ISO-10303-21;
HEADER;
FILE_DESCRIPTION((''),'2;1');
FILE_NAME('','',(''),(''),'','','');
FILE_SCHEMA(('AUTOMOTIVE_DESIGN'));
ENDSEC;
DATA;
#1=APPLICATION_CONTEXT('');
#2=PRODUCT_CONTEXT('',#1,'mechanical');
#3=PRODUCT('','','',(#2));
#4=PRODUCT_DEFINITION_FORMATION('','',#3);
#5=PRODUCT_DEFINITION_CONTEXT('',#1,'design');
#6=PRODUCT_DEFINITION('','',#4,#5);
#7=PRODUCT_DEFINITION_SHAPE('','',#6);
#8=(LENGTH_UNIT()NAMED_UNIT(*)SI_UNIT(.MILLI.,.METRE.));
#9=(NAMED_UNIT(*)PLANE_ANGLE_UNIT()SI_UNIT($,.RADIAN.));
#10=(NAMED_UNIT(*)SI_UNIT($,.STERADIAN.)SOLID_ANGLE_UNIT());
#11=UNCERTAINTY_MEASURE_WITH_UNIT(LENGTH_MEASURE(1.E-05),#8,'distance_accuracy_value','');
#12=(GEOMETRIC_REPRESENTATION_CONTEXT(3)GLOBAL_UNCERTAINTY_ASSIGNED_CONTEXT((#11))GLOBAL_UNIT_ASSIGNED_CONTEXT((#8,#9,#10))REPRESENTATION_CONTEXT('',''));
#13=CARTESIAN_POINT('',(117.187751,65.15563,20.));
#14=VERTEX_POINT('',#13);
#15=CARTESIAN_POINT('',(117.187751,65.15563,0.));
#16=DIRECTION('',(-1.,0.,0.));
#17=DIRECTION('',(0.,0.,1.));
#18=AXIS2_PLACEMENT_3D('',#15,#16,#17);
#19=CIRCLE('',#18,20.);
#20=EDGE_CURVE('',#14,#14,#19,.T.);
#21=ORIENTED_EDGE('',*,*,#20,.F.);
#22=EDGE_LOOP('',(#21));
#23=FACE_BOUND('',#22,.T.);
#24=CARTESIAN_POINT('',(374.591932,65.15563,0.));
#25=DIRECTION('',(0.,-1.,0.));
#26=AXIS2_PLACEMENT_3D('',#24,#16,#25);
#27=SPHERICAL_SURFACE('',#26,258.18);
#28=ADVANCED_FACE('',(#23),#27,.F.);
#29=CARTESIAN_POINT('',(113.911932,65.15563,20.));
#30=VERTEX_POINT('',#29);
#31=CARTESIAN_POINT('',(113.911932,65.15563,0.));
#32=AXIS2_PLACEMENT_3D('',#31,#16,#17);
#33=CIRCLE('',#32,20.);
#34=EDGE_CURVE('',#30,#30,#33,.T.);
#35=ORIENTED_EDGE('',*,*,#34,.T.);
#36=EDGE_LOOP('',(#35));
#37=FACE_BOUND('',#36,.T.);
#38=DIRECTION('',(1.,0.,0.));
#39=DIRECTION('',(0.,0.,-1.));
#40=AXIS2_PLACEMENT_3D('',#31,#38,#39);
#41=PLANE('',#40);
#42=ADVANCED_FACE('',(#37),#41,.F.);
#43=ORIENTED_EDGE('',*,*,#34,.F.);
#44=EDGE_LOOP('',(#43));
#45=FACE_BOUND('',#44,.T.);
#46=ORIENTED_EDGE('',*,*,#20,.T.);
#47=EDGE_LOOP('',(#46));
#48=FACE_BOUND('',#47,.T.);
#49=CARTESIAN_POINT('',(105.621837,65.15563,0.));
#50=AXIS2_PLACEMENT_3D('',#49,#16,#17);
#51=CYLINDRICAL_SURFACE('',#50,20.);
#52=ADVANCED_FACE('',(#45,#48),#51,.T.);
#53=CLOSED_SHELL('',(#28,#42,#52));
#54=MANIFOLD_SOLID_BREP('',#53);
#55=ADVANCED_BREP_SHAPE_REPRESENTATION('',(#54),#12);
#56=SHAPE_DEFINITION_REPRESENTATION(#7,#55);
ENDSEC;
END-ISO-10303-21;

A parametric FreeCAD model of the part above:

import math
import FreeCAD as App
import Part
import Sketcher
Q = App.Units.Quantity

doc = App.newDocument("Part")
body = doc.addObject("PartDesign::Body", "Body")

sketch1 = body.newObject("Sketcher::SketchObject", "Sketch")
sketch1.AttachmentSupport = (doc.getObject("XY_Plane"), [""])
sketch1.MapMode = "FlatFace"
sketch1.addGeometry(Part.LineSegment(App.Vector(113.911932, 85.15563, 0), App.Vector(113.911932, 65.15563, 0)), False)
sketch1.addGeometry(Part.LineSegment(App.Vector(113.911932, 65.15563, 0), App.Vector(116.411932, 65.15563, 0)), False)
sketch1.addGeometry(Part.ArcOfCircle(Part.Circle(App.Vector(374.591931, 65.15563, 0), App.Vector(0, 0, 1), 258.18), math.radians(175.557112), math.radians(180)), False)
sketch1.addGeometry(Part.LineSegment(App.Vector(117.187751, 85.15563, 0), App.Vector(113.911932, 85.15563, 0)), False)
sketch1.addGeometry(Part.LineSegment(App.Vector(113.911932, 65.15563, 0), App.Vector(374.591931, 65.15563, 0)), True)
sketch1.addConstraint(Sketcher.Constraint("Coincident", 0, 2, 1, 1))
sketch1.addConstraint(Sketcher.Constraint("Coincident", 1, 2, 2, 2))
sketch1.addConstraint(Sketcher.Constraint("Coincident", 2, 1, 3, 1))
sketch1.addConstraint(Sketcher.Constraint("Coincident", 3, 2, 0, 1))
sketch1.addConstraint(Sketcher.Constraint("Vertical", 0))
sketch1.addConstraint(Sketcher.Constraint("Horizontal", 1))
sketch1.addConstraint(Sketcher.Constraint("Horizontal", 3))
sketch1.addConstraint(Sketcher.Constraint("Horizontal", 4))
sketch1.addConstraint(Sketcher.Constraint("Coincident", 4, 1, 0, 2))
sketch1.addConstraint(Sketcher.Constraint("Coincident", 4, 2, 2, 3))
sketch1.addConstraint(Sketcher.Constraint("DistanceY", 0, 2, 0, 1, Q("20 mm")))
sketch1.addConstraint(Sketcher.Constraint("Radius", 2, Q("258.18 mm")))
sketch1.addConstraint(Sketcher.Constraint("DistanceX", 1, 1, 1, 2, Q("2.5 mm")))
sketch1.addConstraint(Sketcher.Constraint("DistanceX", -1, 1, 2, 3, Q("374.591931 mm")))
sketch1.addConstraint(Sketcher.Constraint("DistanceY", -1, 1, 2, 3, Q("65.15563 mm")))
revolution = body.newObject("PartDesign::Revolution", "Revolution")
revolution.Profile = sketch1
revolution.ReferenceAxis = (sketch1, ["Axis0"])
revolution.Angle = 360

doc.recompute()
